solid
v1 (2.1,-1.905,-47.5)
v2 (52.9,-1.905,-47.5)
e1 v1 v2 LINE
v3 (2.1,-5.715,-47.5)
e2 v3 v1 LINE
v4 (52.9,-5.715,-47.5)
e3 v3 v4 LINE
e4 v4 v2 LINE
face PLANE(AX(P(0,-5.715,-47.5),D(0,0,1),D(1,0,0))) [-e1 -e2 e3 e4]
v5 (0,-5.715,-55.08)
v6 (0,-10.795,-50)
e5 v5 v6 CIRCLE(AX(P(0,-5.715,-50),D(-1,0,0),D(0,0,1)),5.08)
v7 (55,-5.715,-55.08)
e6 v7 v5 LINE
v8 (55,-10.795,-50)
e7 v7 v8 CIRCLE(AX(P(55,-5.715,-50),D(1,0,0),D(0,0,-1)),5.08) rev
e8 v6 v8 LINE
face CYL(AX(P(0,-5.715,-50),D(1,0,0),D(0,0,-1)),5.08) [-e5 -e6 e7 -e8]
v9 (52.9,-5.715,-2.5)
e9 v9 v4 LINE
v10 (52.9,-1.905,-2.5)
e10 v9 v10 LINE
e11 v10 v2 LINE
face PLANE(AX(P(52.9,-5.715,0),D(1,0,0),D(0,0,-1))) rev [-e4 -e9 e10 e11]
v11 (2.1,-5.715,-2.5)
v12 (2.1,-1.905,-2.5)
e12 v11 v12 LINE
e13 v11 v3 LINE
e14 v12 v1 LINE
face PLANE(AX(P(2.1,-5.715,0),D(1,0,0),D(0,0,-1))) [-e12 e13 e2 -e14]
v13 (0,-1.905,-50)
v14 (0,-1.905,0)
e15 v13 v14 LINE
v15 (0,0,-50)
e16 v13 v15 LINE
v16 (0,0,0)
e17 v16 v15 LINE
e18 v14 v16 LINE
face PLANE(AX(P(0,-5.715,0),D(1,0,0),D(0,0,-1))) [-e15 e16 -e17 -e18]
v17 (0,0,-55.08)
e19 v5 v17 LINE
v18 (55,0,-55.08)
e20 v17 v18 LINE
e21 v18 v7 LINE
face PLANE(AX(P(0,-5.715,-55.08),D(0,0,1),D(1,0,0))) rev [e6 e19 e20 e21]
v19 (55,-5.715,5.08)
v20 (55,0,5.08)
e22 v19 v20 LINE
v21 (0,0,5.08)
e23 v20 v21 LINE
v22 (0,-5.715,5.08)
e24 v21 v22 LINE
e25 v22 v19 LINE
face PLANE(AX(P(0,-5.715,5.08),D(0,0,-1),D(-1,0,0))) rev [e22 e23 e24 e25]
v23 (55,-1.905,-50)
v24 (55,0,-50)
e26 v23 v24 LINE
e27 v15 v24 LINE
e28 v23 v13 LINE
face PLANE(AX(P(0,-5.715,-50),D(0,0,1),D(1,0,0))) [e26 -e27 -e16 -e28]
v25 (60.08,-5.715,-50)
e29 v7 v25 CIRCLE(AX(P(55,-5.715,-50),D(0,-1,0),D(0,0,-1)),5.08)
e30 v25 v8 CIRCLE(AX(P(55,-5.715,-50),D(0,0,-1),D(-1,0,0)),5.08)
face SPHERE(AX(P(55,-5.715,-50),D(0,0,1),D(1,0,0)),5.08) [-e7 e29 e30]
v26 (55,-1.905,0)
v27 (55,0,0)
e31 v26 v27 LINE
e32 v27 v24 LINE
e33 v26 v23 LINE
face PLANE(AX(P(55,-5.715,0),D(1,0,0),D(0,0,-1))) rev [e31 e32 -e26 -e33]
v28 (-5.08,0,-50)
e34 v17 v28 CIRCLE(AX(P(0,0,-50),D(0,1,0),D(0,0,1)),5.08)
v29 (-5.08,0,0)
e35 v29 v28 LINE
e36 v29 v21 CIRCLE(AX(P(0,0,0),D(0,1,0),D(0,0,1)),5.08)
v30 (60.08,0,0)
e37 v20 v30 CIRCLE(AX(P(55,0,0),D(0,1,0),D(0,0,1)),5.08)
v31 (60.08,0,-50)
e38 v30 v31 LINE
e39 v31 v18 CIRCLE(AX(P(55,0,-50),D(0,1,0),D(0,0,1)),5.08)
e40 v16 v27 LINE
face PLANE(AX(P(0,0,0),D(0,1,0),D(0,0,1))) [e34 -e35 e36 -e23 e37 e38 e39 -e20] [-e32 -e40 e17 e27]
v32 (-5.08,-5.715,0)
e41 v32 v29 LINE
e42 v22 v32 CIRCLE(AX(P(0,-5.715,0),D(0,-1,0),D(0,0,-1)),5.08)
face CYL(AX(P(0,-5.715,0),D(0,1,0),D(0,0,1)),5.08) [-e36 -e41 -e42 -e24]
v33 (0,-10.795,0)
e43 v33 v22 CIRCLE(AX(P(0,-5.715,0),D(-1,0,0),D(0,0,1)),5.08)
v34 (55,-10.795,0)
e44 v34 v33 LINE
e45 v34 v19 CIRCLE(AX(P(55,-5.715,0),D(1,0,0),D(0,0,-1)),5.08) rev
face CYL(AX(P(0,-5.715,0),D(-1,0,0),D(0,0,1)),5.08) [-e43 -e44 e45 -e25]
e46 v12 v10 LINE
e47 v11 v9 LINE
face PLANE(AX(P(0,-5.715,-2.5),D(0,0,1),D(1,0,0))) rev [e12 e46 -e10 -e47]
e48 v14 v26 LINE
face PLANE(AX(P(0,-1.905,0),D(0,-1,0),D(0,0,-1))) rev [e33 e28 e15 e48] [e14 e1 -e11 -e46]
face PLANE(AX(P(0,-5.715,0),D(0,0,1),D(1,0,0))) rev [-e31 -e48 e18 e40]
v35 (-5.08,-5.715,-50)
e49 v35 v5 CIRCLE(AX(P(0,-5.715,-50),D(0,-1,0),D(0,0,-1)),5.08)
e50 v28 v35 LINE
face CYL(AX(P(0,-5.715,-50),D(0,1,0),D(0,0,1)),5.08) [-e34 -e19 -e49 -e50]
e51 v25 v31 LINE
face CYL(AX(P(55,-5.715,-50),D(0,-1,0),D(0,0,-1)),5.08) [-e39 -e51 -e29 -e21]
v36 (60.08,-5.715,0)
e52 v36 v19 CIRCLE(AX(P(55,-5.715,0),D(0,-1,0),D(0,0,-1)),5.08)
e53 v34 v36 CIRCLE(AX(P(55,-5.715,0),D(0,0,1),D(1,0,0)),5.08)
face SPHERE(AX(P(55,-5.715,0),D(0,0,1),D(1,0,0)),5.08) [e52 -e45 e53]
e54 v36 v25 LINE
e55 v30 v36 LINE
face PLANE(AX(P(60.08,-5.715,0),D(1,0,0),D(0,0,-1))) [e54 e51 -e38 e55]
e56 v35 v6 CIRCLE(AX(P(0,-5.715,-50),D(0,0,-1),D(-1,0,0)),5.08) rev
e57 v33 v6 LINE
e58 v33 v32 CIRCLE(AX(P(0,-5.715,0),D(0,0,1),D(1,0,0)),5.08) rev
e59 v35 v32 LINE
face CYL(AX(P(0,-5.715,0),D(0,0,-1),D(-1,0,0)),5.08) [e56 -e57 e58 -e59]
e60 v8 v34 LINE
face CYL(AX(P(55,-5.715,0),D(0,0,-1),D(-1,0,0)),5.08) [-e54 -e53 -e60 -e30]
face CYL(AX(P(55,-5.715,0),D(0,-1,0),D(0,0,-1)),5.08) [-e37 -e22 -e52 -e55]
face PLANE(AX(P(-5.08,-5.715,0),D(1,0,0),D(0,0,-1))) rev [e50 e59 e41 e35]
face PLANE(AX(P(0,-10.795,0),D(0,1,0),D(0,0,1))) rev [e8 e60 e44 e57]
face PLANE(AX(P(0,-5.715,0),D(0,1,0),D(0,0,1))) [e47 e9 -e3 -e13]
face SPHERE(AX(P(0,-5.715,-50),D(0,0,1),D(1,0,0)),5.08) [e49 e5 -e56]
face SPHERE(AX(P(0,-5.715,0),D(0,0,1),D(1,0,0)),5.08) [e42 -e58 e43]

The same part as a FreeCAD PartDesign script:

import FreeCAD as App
import Part
import Sketcher

V = App.Vector
Q = App.Units.Quantity


def edges_at(feature, points):
    """Names of the edges that pass closest to the given points."""
    edges = feature.Shape.Edges
    near = lambda p: min(range(len(edges)), key=lambda i: edges[i].distToShape(Part.Vertex(*p))[0])
    return sorted({f"Edge{near(p) + 1}" for p in points})


def add_polygon(sketch, points):
    """Adds a closed chain of lines whose ends are joined by coincident constraints."""
    first, n = sketch.GeometryCount, len(points)
    for a, b in zip(points, points[1:] + points[:1]):
        sketch.addGeometry(Part.LineSegment(App.Vector(*a, 0), App.Vector(*b, 0)), False)
    for i in range(n):
        sketch.addConstraint(Sketcher.Constraint("Coincident", first + i, 2, first + (i + 1) % n, 1))

doc = App.newDocument("Part")
body = doc.addObject("PartDesign::Body", "Body")

# Sketch on XZ plane
sketch1 = doc.addObject("Sketcher::SketchObject", "Sketch")
body.addObject(sketch1)
sketch1.AttachmentSupport = (doc.XZ_Plane, [""])
sketch1.MapMode = "FlatFace"
add_polygon(sketch1, [(60, 5), (60, -55), (-5, -55), (-5, 5)])  # lines 0-3
add_polygon(sketch1, [(0, -50), (55, -50), (55, 0), (0, 0)])  # lines 4-7
sketch1.addConstraint([
    Sketcher.Constraint("Vertical", 0),
    Sketcher.Constraint("Horizontal", 1),
    Sketcher.Constraint("Vertical", 2),
    Sketcher.Constraint("Horizontal", 3),
    Sketcher.Constraint("Horizontal", 4),
    Sketcher.Constraint("Vertical", 5),
    Sketcher.Constraint("Horizontal", 6),
    Sketcher.Constraint("Vertical", 7),
    Sketcher.Constraint("Coincident", 6, 2, -1, 1),
    Sketcher.Constraint("DistanceX", 1, 2, -1, 1, Q("0.2 in")),
    Sketcher.Constraint("DistanceY", -1, 1, 2, 2, Q("0.2 in")),
    Sketcher.Constraint("DistanceX", 4, 2, 0, 2, Q("0.2 in")),
    Sketcher.Constraint("DistanceY", 0, 2, 4, 2, Q("0.2 in")),
    Sketcher.Constraint("DistanceX", 1, 2, 1, 1, 65.16),
    Sketcher.Constraint("DistanceY", 0, 2, 0, 1, 60.16),
])
pad1 = doc.addObject("PartDesign::Pad", "Pad")
body.addObject(pad1)
pad1.Profile = sketch1
pad1.Length = Q("0.225 in")

# Sketch on XZ plane
sketch2 = doc.addObject("Sketcher::SketchObject", "Sketch001")
body.addObject(sketch2)
sketch2.AttachmentSupport = (doc.XZ_Plane, [""])
sketch2.MapMode = "FlatFace"
sketch2.AttachmentOffset = App.Placement(V(0, 0, 0.225 * 25.4), App.Rotation())
add_polygon(sketch2, [(60, -55), (60, 5), (-5, 5), (-5, -55)])  # lines 0-3
sketch2.addConstraint([
    Sketcher.Constraint("Vertical", 0),
    Sketcher.Constraint("Horizontal", 1),
    Sketcher.Constraint("Vertical", 2),
    Sketcher.Constraint("Horizontal", 3),
    Sketcher.Constraint("DistanceY", -1, 1, 0, 2, Q("0.2 in")),
    Sketcher.Constraint("DistanceX", 1, 2, -1, 1, Q("0.2 in")),
    Sketcher.Constraint("DistanceX", 1, 2, 1, 1, 65.16),
    Sketcher.Constraint("DistanceY", 0, 1, 0, 2, 60.16),
])
pad2 = doc.addObject("PartDesign::Pad", "Pad001")
body.addObject(pad2)
pad2.Profile = sketch2
pad2.Length = Q("0.2 in")
doc.recompute()

fillet = doc.addObject("PartDesign::Fillet", "Fillet")
body.addObject(fillet)
fillet.Base = (pad2, edges_at(pad2, [
    (-5.08, -5.397, 5.08),
    (-5.08, -5.397, -55.08),
    (60.08, -5.397, -55.08),
    (60.08, -5.397, 5.08),
    (-5.08, -10.795, -25),
    (27.5, -10.795, -55.08),
    (60.08, -10.795, -25),
    (27.5, -10.795, 5.08),
]))
fillet.Radius = Q("0.2 in")

# Sketch on XZ plane
sketch3 = doc.addObject("Sketcher::SketchObject", "Sketch002")
body.addObject(sketch3)
sketch3.AttachmentSupport = (doc.XZ_Plane, [""])
sketch3.MapMode = "FlatFace"
sketch3.AttachmentOffset = App.Placement(V(0, 0, 0.225 * 25.4), App.Rotation())
add_polygon(sketch3, [(0, -50), (0, 0), (55, 0), (55, -50)])  # lines 0-3
sketch3.addConstraint([
    Sketcher.Constraint("Vertical", 0),
    Sketcher.Constraint("Horizontal", 1),
    Sketcher.Constraint("Vertical", 2),
    Sketcher.Constraint("Horizontal", 3),
    Sketcher.Constraint("Coincident", 0, 2, -1, 1),
    Sketcher.Constraint("DistanceX", 1, 1, 1, 2, 55.0),
    Sketcher.Constraint("DistanceY", 0, 1, 0, 2, 50.0),
])
pad3 = doc.addObject("PartDesign::Pad", "Pad002")
body.addObject(pad3)
pad3.Profile = sketch3
pad3.Length = Q("0.15 in")
pad3.Reversed = True

# Sketch on XZ plane
sketch4 = doc.addObject("Sketcher::SketchObject", "Sketch003")
body.addObject(sketch4)
sketch4.AttachmentSupport = (doc.XZ_Plane, [""])
sketch4.MapMode = "FlatFace"
sketch4.AttachmentOffset = App.Placement(V(0, 0, 0.075 * 25.4), App.Rotation())
add_polygon(sketch4, [(53, -2), (53, -48), (2, -48), (2, -2)])  # lines 0-3
sketch4.addConstraint([
    Sketcher.Constraint("Vertical", 0),
    Sketcher.Constraint("Horizontal", 1),
    Sketcher.Constraint("Vertical", 2),
    Sketcher.Constraint("Horizontal", 3),
    Sketcher.Constraint("DistanceX", 1, 2, 1, 1, Q("2 in")),
    Sketcher.Constraint("DistanceY", 0, 2, 0, 1, 45.0),
    Sketcher.Constraint("DistanceX", -1, 1, 0, 2, 52.9),
    Sketcher.Constraint("DistanceY", 0, 2, -1, 1, 47.5),
])
pocket1 = doc.addObject("PartDesign::Pocket", "Pocket")
body.addObject(pocket1)
pocket1.Profile = sketch4
pocket1.Length = Q("0.15 in")
pocket1.Reversed = True

doc.recompute()
